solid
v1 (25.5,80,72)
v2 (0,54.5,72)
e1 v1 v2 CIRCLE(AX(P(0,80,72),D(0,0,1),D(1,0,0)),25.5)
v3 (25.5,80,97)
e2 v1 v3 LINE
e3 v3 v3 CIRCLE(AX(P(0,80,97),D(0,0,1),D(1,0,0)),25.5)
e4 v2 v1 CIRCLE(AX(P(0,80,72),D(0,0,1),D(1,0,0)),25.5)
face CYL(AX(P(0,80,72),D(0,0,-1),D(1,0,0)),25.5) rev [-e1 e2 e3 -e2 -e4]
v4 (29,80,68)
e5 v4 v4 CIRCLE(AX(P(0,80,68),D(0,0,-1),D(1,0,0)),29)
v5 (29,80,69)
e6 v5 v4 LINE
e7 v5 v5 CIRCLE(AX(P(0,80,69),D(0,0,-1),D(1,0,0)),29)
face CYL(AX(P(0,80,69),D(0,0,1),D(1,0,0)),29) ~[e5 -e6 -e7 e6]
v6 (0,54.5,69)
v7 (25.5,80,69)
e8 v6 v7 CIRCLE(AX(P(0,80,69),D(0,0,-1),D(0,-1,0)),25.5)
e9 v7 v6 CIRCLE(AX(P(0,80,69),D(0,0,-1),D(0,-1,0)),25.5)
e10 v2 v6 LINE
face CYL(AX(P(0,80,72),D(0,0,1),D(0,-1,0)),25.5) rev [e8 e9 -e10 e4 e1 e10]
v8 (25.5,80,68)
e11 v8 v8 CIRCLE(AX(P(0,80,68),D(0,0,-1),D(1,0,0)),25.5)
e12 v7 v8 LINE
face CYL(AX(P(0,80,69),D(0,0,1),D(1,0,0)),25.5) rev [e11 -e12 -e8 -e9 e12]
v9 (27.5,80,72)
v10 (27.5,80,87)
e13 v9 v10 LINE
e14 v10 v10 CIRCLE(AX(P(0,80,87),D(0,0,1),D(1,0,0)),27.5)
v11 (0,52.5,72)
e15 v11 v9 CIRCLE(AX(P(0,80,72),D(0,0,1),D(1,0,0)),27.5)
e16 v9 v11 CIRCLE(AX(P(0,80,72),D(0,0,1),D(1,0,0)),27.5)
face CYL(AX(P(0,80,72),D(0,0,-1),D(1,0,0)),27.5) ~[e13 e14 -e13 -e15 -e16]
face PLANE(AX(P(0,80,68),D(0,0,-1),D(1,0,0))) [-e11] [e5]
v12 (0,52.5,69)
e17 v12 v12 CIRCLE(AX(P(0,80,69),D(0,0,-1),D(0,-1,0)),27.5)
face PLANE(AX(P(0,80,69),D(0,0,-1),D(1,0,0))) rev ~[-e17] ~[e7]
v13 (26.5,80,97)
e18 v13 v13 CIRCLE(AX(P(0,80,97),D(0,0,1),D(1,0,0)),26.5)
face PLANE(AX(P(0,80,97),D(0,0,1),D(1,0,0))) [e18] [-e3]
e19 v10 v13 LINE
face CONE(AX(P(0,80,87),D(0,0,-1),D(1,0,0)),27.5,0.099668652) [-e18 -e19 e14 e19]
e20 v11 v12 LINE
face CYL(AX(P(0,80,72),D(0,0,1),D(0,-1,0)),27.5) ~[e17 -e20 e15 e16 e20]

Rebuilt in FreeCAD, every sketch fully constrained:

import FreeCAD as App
import Part
import Sketcher
from FreeCAD import Vector
Q = App.Units.Quantity


def edges_at(feature, points):
    """Names of the edges that pass closest to the given points."""
    edges = feature.Shape.Edges
    near = lambda p: min(range(len(edges)), key=lambda i: edges[i].distToShape(Part.Vertex(*p))[0])
    return sorted({f"Edge{near(p) + 1}" for p in points})

doc = App.newDocument("Part")
body = doc.addObject("PartDesign::Body", "Body")

# Sketch on XY plane
sketch1 = body.newObject("Sketcher::SketchObject", "Sketch")
sketch1.AttachmentSupport = (doc.getObject("XY_Plane"), [""])
sketch1.MapMode = "FlatFace"
sketch1.AttachmentOffset = App.Placement(Vector(0, 0, 72), App.Rotation())
sketch1.addGeometry([
    Part.Circle(Vector(0, 80, 0), Vector(0, 0, 1), 28),
    Part.Circle(Vector(0, 80, 0), Vector(0, 0, 1), 26),
], False)
sketch1.addConstraint([
    Sketcher.Constraint("Coincident", 1, 3, 0, 3),
    Sketcher.Constraint("PointOnObject", 0, 3, -2),
    Sketcher.Constraint("Diameter", 0, Q("55 mm")),
    Sketcher.Constraint("Diameter", 1, Q("51 mm")),
    Sketcher.Constraint("DistanceY", -1, 1, 0, 3, Q("80 mm")),
])
pad1 = body.newObject("PartDesign::Pad", "Pad")
pad1.Profile = sketch1
pad1.Length = 25
doc.recompute()

chamfer = body.newObject("PartDesign::Chamfer", "Chamfer")
chamfer.Base = (pad1, edges_at(pad1, [(-27.5, 80, 97)]))
chamfer.ChamferType = "Two distances"
chamfer.Size = 10
chamfer.Size2 = 1

# Sketch on XY plane
sketch2 = body.newObject("Sketcher::SketchObject", "Sketch001")
sketch2.AttachmentSupport = (doc.getObject("XY_Plane"), [""])
sketch2.MapMode = "FlatFace"
sketch2.AttachmentOffset = App.Placement(Vector(0, 0, 72), App.Rotation())
sketch2.addGeometry([
    Part.Circle(Vector(0, 80, 0), Vector(0, 0, 1), 28),
    Part.Circle(Vector(0, 80, 0), Vector(0, 0, 1), 26),
], False)
sketch2.addConstraint([
    Sketcher.Constraint("Coincident", 1, 3, 0, 3),
    Sketcher.Constraint("PointOnObject", 0, 3, -2),
    Sketcher.Constraint("Diameter", 0, Q("55 mm")),
    Sketcher.Constraint("Diameter", 1, Q("51 mm")),
    Sketcher.Constraint("DistanceY", -1, 1, 0, 3, Q("80 mm")),
])
pad2 = body.newObject("PartDesign::Pad", "Pad001")
pad2.Profile = sketch2
pad2.Length = 3
pad2.Reversed = True

# Sketch on XY plane
sketch3 = body.newObject("Sketcher::SketchObject", "Sketch002")
sketch3.AttachmentSupport = (doc.getObject("XY_Plane"), [""])
sketch3.MapMode = "FlatFace"
sketch3.AttachmentOffset = App.Placement(Vector(0, 0, 69), App.Rotation())
sketch3.addGeometry([
    Part.Circle(Vector(0, 80, 0), Vector(0, 0, 1), 29),
    Part.Circle(Vector(0, 80, 0), Vector(0, 0, 1), 26),
], False)
sketch3.addConstraint([
    Sketcher.Constraint("Coincident", 1, 3, 0, 3),
    Sketcher.Constraint("PointOnObject", 0, 3, -2),
    Sketcher.Constraint("Diameter", 0, Q("58 mm")),
    Sketcher.Constraint("Diameter", 1, Q("51 mm")),
    Sketcher.Constraint("DistanceY", -1, 1, 0, 3, Q("80 mm")),
])
pad3 = body.newObject("PartDesign::Pad", "Pad002")
pad3.Profile = sketch3
pad3.Length = 1
pad3.Reversed = True

doc.recompute()
